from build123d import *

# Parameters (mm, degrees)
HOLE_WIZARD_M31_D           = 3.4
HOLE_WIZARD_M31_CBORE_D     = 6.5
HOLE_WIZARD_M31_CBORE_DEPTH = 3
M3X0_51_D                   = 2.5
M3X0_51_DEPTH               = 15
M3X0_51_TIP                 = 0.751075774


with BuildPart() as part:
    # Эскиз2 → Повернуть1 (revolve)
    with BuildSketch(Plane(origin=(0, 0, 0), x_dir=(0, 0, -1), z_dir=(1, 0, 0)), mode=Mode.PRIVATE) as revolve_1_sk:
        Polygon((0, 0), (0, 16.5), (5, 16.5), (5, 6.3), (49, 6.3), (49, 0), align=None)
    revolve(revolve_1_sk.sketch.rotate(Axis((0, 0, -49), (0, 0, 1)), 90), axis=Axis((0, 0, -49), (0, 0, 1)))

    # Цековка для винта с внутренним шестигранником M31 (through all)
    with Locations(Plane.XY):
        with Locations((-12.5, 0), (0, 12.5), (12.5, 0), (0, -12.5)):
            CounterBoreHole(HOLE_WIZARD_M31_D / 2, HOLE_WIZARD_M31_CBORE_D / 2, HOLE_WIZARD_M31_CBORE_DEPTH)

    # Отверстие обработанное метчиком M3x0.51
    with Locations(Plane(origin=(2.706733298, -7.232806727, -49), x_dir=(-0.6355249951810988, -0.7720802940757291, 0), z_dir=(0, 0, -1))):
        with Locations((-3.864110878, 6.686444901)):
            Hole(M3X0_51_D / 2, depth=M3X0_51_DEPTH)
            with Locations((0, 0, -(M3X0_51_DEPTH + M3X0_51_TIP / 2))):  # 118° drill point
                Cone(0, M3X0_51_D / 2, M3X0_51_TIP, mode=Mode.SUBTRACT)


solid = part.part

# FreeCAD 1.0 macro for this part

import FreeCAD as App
import Part
import Sketcher

V = App.Vector


def add_polygon(sketch, points):
    """Adds a closed chain of lines whose ends are joined by coincident constraints."""
    first, n = sketch.GeometryCount, len(points)
    for a, b in zip(points, points[1:] + points[:1]):
        sketch.addGeometry(Part.LineSegment(App.Vector(*a, 0), App.Vector(*b, 0)), False)
    for i in range(n):
        sketch.addConstraint(Sketcher.Constraint("Coincident", first + i, 2, first + (i + 1) % n, 1))

doc = App.newDocument("Part")
params = doc.addObject("Spreadsheet::Sheet", "Params")
for row, (alias, value) in enumerate([
    ("sketch1_height", "49 mm"),
    ("sketch1_height2", "44 mm"),
    ("sketch1_width", "16.5 mm"),
    ("sketch1_width2", "6.3 mm"),
    ("revolution_angle", "360 deg"),
    ("sketch2_diameter", "3.4 mm"),
    ("hole_diameter", "3.4 mm"),
    ("hole_cbore_diameter", "6.5 mm"),
    ("hole_cbore_depth", "3 mm"),
    ("sketch3_diameter", "2.5 mm"),
    ("hole2_diameter", "2.5 mm"),
    ("hole2_depth", "15 mm"),
], start=1):
    params.set(f"A{row}", alias)
    params.set(f"B{row}", "=" + value)
    params.setAlias(f"B{row}", alias)

body = doc.addObject("PartDesign::Body", "Body")

# Sketch on YZ plane
sketch1 = body.newObject("Sketcher::SketchObject", "Sketch")
sketch1.AttachmentSupport = (doc.getObject("YZ_Plane"), [""])
sketch1.MapMode = "FlatFace"
add_polygon(sketch1, [(16, 0), (0, 0), (0, -49), (6, -49), (6, -5), (16, -5)])  # lines 0-5
sketch1.addConstraint([
    Sketcher.Constraint("Horizontal", 0),
    Sketcher.Constraint("Vertical", 1),
    Sketcher.Constraint("Horizontal", 2),
    Sketcher.Constraint("Vertical", 3),
    Sketcher.Constraint("Horizontal", 4),
    Sketcher.Constraint("Vertical", 5),
    Sketcher.Constraint("Coincident", 0, 2, -1, 1),
    Sketcher.Constraint("DistanceY", 1, 2, 1, 1, 49.0),
    Sketcher.Constraint("DistanceY", 3, 1, 3, 2, 44.0),
    Sketcher.Constraint("DistanceX", 0, 2, 0, 1, 16.5),
    Sketcher.Constraint("DistanceX", 2, 1, 2, 2, 6.3),
])
sketch1.setExpression("Constraints[13]", "Params.sketch1_height")
sketch1.setExpression("Constraints[14]", "Params.sketch1_height2")
sketch1.setExpression("Constraints[15]", "Params.sketch1_width")
sketch1.setExpression("Constraints[16]", "Params.sketch1_width2")
revolution = body.newObject("PartDesign::Revolution", "Revolution")
revolution.Profile = sketch1
revolution.ReferenceAxis = (sketch1, ["V_Axis"])
revolution.setExpression("Angle", "Params.revolution_angle")

# Sketch on XY plane
sketch2 = body.newObject("Sketcher::SketchObject", "Sketch001")
sketch2.AttachmentSupport = (doc.getObject("XY_Plane"), [""])
sketch2.MapMode = "FlatFace"
sketch2.addGeometry([
    Part.Circle(V(-12.5, 0, 0), V(0, 0, 1), 1.7),
    Part.Circle(V(0, 12.5, 0), V(0, 0, 1), 1.7),
    Part.Circle(V(12.5, 0, 0), V(0, 0, 1), 1.7),
    Part.Circle(V(0, -12.5, 0), V(0, 0, 1), 1.7),
], False)
sketch2.addConstraint([
    Sketcher.Constraint("Equal", 0, 1),
    Sketcher.Constraint("Equal", 1, 2),
    Sketcher.Constraint("Equal", 2, 3),
    Sketcher.Constraint("Symmetric", 0, 3, 2, 3, -1, 1),
    Sketcher.Constraint("Symmetric", 1, 3, 3, 3, -1, 1),
    Sketcher.Constraint("PointOnObject", 0, 3, -1),
    Sketcher.Constraint("PointOnObject", 1, 3, -2),
    Sketcher.Constraint("Diameter", 0, 3.4),
    Sketcher.Constraint("DistanceX", 0, 3, 2, 3, 25.0),
    Sketcher.Constraint("DistanceY", 3, 3, 1, 3, 25.0),
])
sketch2.setExpression("Constraints[7]", "Params.sketch2_diameter")
doc.recompute()
hole = body.newObject("PartDesign::Hole", "Hole")
hole.Profile = sketch2
hole.ThreadType = "None"
hole.setExpression("Diameter", "Params.hole_diameter")
hole.DepthType = "ThroughAll"
hole.HoleCutType = "Counterbore"
hole.setExpression("HoleCutDiameter", "Params.hole_cbore_diameter")
hole.setExpression("HoleCutDepth", "Params.hole_cbore_depth")

# Sketch on XY plane
sketch3 = body.newObject("Sketcher::SketchObject", "Sketch002")
sketch3.AttachmentSupport = (doc.getObject("XY_Plane"), [""])
sketch3.MapMode = "FlatFace"
sketch3.AttachmentOffset = App.Placement(V(0, 0, -49), App.Rotation())
sketch3.addGeometry(Part.Circle(V(0, 0, 0), V(0, 0, 1), 1.2), False)
sketch3.addConstraint([
    Sketcher.Constraint("Coincident", 0, 3, -1, 1),
    Sketcher.Constraint("Diameter", 0, 2.5),
])
sketch3.setExpression("Constraints[1]", "Params.sketch3_diameter")
doc.recompute()
hole2 = body.newObject("PartDesign::Hole", "Hole001")
hole2.Profile = sketch3
hole2.ThreadType = "None"
hole2.setExpression("Diameter", "Params.hole2_diameter")
hole2.DepthType = "Dimension"
hole2.setExpression("Depth", "Params.hole2_depth")
hole2.DrillPoint = "Angled"
hole2.DrillPointAngle = 118
hole2.Reversed = True

doc.recompute()
